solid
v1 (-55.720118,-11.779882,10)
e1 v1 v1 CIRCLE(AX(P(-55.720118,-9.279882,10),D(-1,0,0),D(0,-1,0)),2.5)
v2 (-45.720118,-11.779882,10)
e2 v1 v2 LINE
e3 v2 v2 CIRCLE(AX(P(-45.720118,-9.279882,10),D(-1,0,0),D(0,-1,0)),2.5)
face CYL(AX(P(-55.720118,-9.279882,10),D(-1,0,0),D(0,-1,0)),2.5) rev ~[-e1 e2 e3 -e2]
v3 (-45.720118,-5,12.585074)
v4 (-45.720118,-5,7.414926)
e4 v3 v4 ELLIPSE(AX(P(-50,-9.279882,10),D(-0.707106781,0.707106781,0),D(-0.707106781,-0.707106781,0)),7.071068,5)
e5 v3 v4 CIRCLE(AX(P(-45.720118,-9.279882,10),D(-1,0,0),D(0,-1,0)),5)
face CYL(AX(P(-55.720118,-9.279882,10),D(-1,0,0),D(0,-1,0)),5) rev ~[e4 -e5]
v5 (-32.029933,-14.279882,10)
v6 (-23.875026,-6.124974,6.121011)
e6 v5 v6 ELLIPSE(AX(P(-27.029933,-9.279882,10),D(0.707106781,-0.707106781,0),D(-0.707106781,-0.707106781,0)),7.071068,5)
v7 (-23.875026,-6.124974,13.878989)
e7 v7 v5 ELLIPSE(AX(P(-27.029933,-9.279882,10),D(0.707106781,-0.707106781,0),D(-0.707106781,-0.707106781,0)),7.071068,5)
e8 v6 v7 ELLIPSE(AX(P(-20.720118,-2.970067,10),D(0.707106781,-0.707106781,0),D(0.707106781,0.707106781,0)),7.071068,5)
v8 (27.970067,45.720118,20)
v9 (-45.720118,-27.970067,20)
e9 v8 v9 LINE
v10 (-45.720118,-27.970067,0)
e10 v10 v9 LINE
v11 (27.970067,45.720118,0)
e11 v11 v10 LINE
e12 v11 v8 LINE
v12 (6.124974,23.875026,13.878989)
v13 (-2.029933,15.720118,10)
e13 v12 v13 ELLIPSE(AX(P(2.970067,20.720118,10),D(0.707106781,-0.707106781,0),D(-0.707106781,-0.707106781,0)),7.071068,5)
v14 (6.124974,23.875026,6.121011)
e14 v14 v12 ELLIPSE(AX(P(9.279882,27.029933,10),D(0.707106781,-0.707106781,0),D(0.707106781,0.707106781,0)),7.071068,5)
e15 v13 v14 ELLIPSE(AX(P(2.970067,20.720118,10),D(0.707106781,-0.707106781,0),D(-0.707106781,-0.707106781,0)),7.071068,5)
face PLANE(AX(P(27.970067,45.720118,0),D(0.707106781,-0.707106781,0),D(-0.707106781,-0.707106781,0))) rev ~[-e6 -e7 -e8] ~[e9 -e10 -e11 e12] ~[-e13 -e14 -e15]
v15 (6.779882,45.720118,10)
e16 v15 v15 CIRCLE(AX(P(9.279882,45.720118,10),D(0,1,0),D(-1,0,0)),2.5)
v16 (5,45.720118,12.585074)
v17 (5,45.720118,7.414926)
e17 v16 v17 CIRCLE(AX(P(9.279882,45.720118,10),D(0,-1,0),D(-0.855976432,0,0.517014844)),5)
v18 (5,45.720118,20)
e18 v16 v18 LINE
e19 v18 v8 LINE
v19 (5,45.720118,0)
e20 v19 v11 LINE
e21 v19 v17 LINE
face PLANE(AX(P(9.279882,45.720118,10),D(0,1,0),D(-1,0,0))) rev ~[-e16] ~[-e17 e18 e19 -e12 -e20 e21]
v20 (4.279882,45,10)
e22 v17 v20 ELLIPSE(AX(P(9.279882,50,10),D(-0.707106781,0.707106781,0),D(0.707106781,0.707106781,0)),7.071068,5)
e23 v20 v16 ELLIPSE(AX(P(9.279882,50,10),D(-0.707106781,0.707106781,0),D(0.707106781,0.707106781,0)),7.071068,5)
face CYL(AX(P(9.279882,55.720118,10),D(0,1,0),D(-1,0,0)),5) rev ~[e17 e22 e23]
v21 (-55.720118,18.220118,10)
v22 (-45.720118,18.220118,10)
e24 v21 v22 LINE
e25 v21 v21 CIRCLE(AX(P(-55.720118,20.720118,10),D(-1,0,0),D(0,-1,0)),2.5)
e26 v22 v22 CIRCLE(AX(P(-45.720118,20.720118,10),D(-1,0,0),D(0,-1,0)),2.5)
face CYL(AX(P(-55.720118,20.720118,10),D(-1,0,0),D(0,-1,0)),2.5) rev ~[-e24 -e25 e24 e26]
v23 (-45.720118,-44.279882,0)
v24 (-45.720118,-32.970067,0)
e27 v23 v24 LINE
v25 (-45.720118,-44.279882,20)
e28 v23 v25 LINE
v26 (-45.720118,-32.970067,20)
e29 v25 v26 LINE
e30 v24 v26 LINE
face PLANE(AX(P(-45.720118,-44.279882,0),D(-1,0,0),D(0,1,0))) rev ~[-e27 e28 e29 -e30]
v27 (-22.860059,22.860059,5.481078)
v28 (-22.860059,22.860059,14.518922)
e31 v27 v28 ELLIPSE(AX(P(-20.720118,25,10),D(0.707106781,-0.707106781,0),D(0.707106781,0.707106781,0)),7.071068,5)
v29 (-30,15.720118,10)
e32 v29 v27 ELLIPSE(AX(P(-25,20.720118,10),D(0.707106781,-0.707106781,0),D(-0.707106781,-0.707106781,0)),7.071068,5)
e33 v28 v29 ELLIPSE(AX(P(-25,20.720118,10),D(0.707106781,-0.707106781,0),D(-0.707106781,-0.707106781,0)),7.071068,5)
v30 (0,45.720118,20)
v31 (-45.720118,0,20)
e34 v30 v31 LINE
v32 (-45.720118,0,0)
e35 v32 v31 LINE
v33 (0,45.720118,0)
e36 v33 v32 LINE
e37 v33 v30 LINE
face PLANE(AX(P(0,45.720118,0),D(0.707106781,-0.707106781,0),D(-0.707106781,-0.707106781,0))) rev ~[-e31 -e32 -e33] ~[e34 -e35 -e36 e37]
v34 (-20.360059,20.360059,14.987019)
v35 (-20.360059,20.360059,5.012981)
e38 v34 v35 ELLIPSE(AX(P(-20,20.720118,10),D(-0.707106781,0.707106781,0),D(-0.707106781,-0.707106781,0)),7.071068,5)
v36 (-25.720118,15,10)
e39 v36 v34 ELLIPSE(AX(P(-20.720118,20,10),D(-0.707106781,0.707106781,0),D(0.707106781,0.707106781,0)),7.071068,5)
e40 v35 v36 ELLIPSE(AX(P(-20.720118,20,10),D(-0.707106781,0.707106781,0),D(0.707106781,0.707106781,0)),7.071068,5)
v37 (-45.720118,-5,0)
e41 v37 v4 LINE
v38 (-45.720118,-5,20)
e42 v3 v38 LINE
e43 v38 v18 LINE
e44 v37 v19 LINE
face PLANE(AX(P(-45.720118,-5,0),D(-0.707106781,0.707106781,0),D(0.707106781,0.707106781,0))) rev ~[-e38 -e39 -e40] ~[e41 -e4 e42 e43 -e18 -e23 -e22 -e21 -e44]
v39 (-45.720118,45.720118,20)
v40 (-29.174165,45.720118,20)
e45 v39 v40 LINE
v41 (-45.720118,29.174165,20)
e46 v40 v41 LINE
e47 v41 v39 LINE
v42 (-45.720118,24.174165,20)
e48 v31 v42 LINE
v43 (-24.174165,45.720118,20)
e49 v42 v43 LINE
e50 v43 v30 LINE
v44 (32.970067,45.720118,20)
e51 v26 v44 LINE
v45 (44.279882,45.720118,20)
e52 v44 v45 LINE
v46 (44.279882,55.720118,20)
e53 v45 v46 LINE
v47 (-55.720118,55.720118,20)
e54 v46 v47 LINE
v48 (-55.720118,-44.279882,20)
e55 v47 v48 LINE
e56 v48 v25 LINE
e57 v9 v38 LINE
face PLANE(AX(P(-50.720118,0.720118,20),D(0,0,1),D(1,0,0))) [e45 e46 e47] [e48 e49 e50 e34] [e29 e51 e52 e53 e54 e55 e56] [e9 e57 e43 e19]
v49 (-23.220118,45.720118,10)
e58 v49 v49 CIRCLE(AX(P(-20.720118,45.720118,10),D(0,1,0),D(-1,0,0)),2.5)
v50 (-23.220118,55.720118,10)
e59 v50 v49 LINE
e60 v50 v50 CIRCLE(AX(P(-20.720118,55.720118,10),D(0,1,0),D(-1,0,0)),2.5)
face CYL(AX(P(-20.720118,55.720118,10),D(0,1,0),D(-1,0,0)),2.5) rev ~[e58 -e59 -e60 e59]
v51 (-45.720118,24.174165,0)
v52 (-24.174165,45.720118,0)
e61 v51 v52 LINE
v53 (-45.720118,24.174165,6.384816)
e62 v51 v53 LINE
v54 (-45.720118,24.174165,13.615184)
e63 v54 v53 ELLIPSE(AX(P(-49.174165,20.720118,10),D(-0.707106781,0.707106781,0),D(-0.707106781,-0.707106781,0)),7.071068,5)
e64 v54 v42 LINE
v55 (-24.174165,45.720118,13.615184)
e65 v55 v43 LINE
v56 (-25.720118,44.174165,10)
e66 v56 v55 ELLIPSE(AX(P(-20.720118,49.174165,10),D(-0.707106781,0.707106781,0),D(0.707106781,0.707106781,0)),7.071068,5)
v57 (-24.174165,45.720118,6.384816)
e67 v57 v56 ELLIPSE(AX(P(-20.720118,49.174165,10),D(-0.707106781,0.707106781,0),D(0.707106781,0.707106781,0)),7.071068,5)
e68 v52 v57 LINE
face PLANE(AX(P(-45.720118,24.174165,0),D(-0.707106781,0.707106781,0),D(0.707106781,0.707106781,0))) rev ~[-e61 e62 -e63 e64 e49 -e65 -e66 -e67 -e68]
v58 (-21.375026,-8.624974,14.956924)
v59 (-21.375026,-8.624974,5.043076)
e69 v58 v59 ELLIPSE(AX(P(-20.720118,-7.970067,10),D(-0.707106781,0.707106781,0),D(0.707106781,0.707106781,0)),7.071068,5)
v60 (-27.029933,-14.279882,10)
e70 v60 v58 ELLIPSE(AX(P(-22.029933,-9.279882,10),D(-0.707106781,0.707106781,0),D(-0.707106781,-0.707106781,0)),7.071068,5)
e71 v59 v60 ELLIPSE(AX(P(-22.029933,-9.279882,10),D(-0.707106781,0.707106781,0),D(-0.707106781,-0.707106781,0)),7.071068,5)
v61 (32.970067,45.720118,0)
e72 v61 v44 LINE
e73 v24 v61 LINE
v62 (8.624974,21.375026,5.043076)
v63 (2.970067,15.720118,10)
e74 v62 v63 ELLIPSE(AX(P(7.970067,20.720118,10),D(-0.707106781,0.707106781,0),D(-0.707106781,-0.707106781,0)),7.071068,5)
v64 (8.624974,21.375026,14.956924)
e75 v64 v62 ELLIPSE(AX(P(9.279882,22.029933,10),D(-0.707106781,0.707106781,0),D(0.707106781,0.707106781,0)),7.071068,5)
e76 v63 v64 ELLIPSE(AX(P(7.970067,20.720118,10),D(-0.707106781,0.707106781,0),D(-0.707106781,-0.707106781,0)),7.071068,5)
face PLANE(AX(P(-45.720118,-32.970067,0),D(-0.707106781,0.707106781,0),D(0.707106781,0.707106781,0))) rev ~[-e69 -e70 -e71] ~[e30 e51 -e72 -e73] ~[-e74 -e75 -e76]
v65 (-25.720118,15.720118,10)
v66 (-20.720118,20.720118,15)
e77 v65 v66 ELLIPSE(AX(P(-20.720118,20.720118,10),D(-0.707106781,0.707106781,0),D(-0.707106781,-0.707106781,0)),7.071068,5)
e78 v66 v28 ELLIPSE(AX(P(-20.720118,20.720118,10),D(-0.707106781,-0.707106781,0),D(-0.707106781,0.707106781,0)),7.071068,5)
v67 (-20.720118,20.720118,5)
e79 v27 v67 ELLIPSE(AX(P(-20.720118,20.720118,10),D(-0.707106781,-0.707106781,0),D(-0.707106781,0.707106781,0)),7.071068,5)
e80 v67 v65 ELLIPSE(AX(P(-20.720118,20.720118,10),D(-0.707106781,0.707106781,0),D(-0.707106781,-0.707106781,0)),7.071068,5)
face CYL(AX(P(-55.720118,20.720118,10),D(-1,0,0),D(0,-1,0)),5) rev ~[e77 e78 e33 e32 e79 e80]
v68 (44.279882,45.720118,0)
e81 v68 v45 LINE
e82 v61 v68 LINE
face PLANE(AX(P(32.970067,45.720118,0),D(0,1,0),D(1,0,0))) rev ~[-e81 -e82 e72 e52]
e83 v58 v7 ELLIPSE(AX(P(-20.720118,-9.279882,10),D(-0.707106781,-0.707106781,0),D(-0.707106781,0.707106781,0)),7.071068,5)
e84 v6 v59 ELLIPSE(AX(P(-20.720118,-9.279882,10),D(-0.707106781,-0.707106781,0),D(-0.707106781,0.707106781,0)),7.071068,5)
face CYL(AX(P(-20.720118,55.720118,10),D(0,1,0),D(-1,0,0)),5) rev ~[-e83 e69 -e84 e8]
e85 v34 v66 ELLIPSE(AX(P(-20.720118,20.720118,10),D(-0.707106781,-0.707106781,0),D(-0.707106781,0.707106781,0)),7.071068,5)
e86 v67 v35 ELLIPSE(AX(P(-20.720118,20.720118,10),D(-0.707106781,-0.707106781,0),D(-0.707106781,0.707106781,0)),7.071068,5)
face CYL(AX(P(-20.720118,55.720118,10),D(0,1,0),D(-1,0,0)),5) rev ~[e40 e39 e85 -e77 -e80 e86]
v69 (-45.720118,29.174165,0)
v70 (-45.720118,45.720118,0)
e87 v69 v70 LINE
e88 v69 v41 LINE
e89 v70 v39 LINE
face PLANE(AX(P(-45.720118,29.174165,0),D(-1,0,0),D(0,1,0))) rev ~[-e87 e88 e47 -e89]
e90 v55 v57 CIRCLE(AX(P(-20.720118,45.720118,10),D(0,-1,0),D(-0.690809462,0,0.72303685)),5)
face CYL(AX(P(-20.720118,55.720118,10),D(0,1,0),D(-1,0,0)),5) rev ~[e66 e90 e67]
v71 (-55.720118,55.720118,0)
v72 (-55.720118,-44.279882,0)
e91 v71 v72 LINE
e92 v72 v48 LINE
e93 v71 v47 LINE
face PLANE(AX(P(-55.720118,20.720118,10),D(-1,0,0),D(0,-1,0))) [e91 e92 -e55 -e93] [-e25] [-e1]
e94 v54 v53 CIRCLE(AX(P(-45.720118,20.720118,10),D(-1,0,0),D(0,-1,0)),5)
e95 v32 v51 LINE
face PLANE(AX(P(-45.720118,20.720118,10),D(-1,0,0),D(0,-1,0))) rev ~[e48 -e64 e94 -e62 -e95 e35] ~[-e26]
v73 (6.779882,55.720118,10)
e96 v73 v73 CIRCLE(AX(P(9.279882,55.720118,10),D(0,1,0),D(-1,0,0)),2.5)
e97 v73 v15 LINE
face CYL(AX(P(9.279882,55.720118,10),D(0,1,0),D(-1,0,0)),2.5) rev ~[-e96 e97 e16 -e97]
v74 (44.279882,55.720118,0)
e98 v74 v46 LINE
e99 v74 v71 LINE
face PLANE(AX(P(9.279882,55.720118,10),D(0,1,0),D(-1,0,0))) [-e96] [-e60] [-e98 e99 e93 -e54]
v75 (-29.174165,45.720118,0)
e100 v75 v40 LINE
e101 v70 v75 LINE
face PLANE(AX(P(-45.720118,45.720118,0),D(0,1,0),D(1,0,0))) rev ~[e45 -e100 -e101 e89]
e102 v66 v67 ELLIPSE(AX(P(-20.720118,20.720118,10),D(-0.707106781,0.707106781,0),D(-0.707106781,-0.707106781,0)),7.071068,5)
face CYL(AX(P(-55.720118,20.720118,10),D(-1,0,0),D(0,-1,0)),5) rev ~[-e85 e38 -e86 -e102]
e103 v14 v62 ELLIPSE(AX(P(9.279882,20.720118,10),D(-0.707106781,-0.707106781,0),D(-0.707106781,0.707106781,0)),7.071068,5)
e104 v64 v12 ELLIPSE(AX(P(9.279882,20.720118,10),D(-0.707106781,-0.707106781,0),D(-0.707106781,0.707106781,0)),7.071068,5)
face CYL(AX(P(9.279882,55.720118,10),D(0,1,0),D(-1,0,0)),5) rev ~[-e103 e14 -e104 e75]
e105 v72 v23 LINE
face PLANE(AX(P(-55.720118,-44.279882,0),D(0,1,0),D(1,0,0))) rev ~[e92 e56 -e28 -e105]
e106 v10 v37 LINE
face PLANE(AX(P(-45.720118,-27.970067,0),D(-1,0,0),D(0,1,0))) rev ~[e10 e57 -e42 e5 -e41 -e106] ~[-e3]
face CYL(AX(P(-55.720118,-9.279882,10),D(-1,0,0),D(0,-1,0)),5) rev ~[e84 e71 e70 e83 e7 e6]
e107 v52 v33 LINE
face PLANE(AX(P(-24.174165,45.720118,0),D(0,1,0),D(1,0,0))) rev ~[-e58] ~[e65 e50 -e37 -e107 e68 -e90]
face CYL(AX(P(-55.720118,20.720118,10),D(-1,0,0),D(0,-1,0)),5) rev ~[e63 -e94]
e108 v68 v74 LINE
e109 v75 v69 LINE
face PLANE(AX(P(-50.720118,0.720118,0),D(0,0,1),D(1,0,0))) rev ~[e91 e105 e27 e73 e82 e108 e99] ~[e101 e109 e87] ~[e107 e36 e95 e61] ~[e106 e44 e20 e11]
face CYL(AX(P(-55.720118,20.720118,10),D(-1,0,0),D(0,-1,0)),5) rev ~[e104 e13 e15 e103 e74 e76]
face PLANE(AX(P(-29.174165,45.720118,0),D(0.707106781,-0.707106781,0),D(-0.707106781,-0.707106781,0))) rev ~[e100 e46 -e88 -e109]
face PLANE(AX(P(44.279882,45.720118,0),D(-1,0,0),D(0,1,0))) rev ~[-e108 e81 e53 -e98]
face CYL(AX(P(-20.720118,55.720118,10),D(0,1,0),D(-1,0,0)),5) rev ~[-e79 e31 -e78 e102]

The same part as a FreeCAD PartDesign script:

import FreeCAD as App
import Part
import Sketcher
from FreeCAD import Vector
Q = App.Units.Quantity


def add_polygon(sketch, points):
    """Adds a closed chain of lines whose ends are joined by coincident constraints."""
    first, n = sketch.GeometryCount, len(points)
    for a, b in zip(points, points[1:] + points[:1]):
        sketch.addGeometry(Part.LineSegment(App.Vector(*a, 0), App.Vector(*b, 0)), False)
    for i in range(n):
        sketch.addConstraint(Sketcher.Constraint("Coincident", first + i, 2, first + (i + 1) % n, 1))

doc = App.newDocument("Part")
params = doc.addObject("Spreadsheet::Sheet", "Params")
for row, (alias, value) in enumerate([
    ("sketch1_width", "10 mm"),
    ("sketch1_width2", "100 mm"),
    ("pad1_length", "20 mm"),
    ("sketch2_diameter", "10 mm"),
    ("pocket1_length", "86.8 mm"),
    ("sketch3_diameter", "10 mm"),
    ("sketch3_diameter2", "5 mm"),
    ("pad2_length", "10 mm"),
    ("sketch4_diameter", "10 mm"),
    ("pocket2_length", "102.9 mm"),
    ("sketch5_diameter", "10 mm"),
    ("sketch5_diameter2", "5 mm"),
    ("pad3_length", "10 mm"),
], start=1):
    params.set(f"A{row}", alias)
    params.set(f"B{row}", "=" + value)
    params.setAlias(f"B{row}", alias)

body = doc.addObject("PartDesign::Body", "Body")

sketch1 = body.newObject("Sketcher::SketchObject", "Sketch")
sketch1.AttachmentSupport = (doc.getObject("XY_Plane"), [""])
sketch1.MapMode = "FlatFace"
add_polygon(sketch1, [(-56, -44), (-46, -44), (-46, -33), (33, 46), (44, 46), (44, 56), (-56, 56)])
add_polygon(sketch1, [(-46, -28), (-46, -5), (5, 46), (28, 46)])
add_polygon(sketch1, [(-46, 0), (-46, 24), (-24, 46), (0, 46)])
add_polygon(sketch1, [(-46, 29), (-46, 46), (-29, 46)])
sketch1.addConstraint(Sketcher.Constraint("Horizontal", 0))
sketch1.addConstraint(Sketcher.Constraint("Vertical", 1))
sketch1.addConstraint(Sketcher.Constraint("Horizontal", 3))
sketch1.addConstraint(Sketcher.Constraint("Vertical", 4))
sketch1.addConstraint(Sketcher.Constraint("Horizontal", 5))
sketch1.addConstraint(Sketcher.Constraint("Vertical", 6))
sketch1.addConstraint(Sketcher.Constraint("Vertical", 7))
sketch1.addConstraint(Sketcher.Constraint("Horizontal", 9))
sketch1.addConstraint(Sketcher.Constraint("Vertical", 11))
sketch1.addConstraint(Sketcher.Constraint("Horizontal", 13))
sketch1.addConstraint(Sketcher.Constraint("Vertical", 15))
sketch1.addConstraint(Sketcher.Constraint("Horizontal", 16))
sketch1.addConstraint(Sketcher.Constraint("PointOnObject", 13, 2, -2))
sketch1.addConstraint(Sketcher.Constraint("PointOnObject", 14, 2, -1))
sketch1.addConstraint(Sketcher.Constraint("Parallel", 2, 8))
sketch1.addConstraint(Sketcher.Constraint("Parallel", 8, 10))
sketch1.addConstraint(Sketcher.Constraint("Parallel", 10, 12))
sketch1.addConstraint(Sketcher.Constraint("Parallel", 12, 14))
sketch1.addConstraint(Sketcher.Constraint("Parallel", 14, 17))
sketch1.addConstraint(Sketcher.Constraint("Horizontal", 3, 2, 8, 2))
sketch1.addConstraint(Sketcher.Constraint("Horizontal", 9, 2, 12, 2))
sketch1.addConstraint(Sketcher.Constraint("Horizontal", 13, 2, 15, 2))
sketch1.addConstraint(Sketcher.Constraint("Vertical", 1, 2, 7, 2))
sketch1.addConstraint(Sketcher.Constraint("Vertical", 10, 2, 11, 2))
sketch1.addConstraint(Sketcher.Constraint("Vertical", 14, 2, 15, 2))
sketch1.addConstraint(Sketcher.Constraint("Equal", 3, 1))
sketch1.addConstraint(Sketcher.Constraint("Equal", 0, 4))
sketch1.addConstraint(Sketcher.Constraint("Equal", 5, 6))
sketch1.addConstraint(Sketcher.Constraint("DistanceX", 0, 1, 0, 2, Q("10 mm")))
sketch1.addConstraint(Sketcher.Constraint("DistanceX", 5, 2, 5, 1, Q("100 mm")))
sketch1.addConstraint(Sketcher.Constraint("DistanceY", 7, 2, -1, 1, Q("5 mm")))
sketch1.addConstraint(Sketcher.Constraint("DistanceX", 9, 2, 2, 2, Q("5 mm")))
sketch1.addConstraint(Sketcher.Constraint("DistanceX", 16, 2, 12, 2, Q("5 mm")))
sketch1.addConstraint(Sketcher.Constraint("Distance", 8, Q("71.729079 mm")))
sketch1.addConstraint(Sketcher.Constraint("Distance", 10, Q("104.213658 mm")))
sketch1.addConstraint(Sketcher.Constraint("Distance", 12, Q("30.470579 mm")))
sketch1.setExpression("Constraints[46]", "Params.sketch1_width")
sketch1.setExpression("Constraints[47]", "Params.sketch1_width2")
pad1 = body.newObject("PartDesign::Pad", "Pad")
pad1.Profile = sketch1
pad1.setExpression("Length", "Params.pad1_length")

sketch2 = body.newObject("Sketcher::SketchObject", "Sketch001")
sketch2.AttachmentSupport = (doc.getObject("YZ_Plane"), [""])
sketch2.MapMode = "FlatFace"
sketch2.AttachmentOffset = App.Placement(Vector(0, 0, -55.720118), App.Rotation())
sketch2.addGeometry(Part.Circle(Vector(-9, 10, 0), Vector(0, 0, 1), 5), False)
sketch2.addGeometry(Part.Circle(Vector(21, 10, 0), Vector(0, 0, 1), 5), False)
sketch2.addConstraint(Sketcher.Constraint("Equal", 0, 1))
sketch2.addConstraint(Sketcher.Constraint("Horizontal", 0, 3, 1, 3))
sketch2.addConstraint(Sketcher.Constraint("Diameter", 0, Q("10 mm")))
sketch2.addConstraint(Sketcher.Constraint("DistanceY", -1, 1, 0, 3, Q("10 mm")))
sketch2.addConstraint(Sketcher.Constraint("DistanceX", 0, 3, 1, 3, Q("30 mm")))
sketch2.addConstraint(Sketcher.Constraint("DistanceX", 0, 3, -1, 1, Q("9.279882 mm")))
sketch2.setExpression("Constraints[2]", "Params.sketch2_diameter")
pocket1 = body.newObject("PartDesign::Pocket", "Pocket")
pocket1.Profile = sketch2
pocket1.setExpression("Length", "Params.pocket1_length")
pocket1.Reversed = True

sketch3 = body.newObject("Sketcher::SketchObject", "Sketch002")
sketch3.AttachmentSupport = (doc.getObject("YZ_Plane"), [""])
sketch3.MapMode = "FlatFace"
sketch3.AttachmentOffset = App.Placement(Vector(0, 0, -55.720118), App.Rotation())
sketch3.addGeometry(Part.Circle(Vector(20.7, 10, 0), Vector(0, 0, 1), 5), False)
sketch3.addGeometry(Part.Circle(Vector(20.7, 10, 0), Vector(0, 0, 1), 2.5), False)
sketch3.addGeometry(Part.Circle(Vector(-9.3, 10, 0), Vector(0, 0, 1), 5), False)
sketch3.addGeometry(Part.Circle(Vector(-9.3, 10, 0), Vector(0, 0, 1), 2.5), False)
sketch3.addConstraint(Sketcher.Constraint("Coincident", 1, 3, 0, 3))
sketch3.addConstraint(Sketcher.Constraint("Coincident", 3, 3, 2, 3))
sketch3.addConstraint(Sketcher.Constraint("Equal", 0, 2))
sketch3.addConstraint(Sketcher.Constraint("Equal", 1, 3))
sketch3.addConstraint(Sketcher.Constraint("Horizontal", 1, 3, 2, 3))
sketch3.addConstraint(Sketcher.Constraint("Diameter", 0, Q("10 mm")))
sketch3.addConstraint(Sketcher.Constraint("Diameter", 1, Q("5 mm")))
sketch3.addConstraint(Sketcher.Constraint("DistanceY", -1, 1, 0, 3, Q("10 mm")))
sketch3.addConstraint(Sketcher.Constraint("DistanceX", 2, 3, 0, 3, Q("30 mm")))
sketch3.addConstraint(Sketcher.Constraint("DistanceX", -1, 1, 0, 3, Q("20.720118 mm")))
sketch3.setExpression("Constraints[5]", "Params.sketch3_diameter")
sketch3.setExpression("Constraints[6]", "Params.sketch3_diameter2")
pad2 = body.newObject("PartDesign::Pad", "Pad001")
pad2.Profile = sketch3
pad2.setExpression("Length", "Params.pad2_length")

sketch4 = body.newObject("Sketcher::SketchObject", "Sketch003")
sketch4.AttachmentSupport = (doc.getObject("XZ_Plane"), [""])
sketch4.MapMode = "FlatFace"
sketch4.AttachmentOffset = App.Placement(Vector(0, 0, -55.720118), App.Rotation())
sketch4.addGeometry(Part.Circle(Vector(-21, 10, 0), Vector(0, 0, 1), 5), False)
sketch4.addGeometry(Part.Circle(Vector(9, 10, 0), Vector(0, 0, 1), 5), False)
sketch4.addConstraint(Sketcher.Constraint("Equal", 0, 1))
sketch4.addConstraint(Sketcher.Constraint("Horizontal", 0, 3, 1, 3))
sketch4.addConstraint(Sketcher.Constraint("Diameter", 0, Q("10 mm")))
sketch4.addConstraint(Sketcher.Constraint("DistanceY", -1, 1, 0, 3, Q("10 mm")))
sketch4.addConstraint(Sketcher.Constraint("DistanceX", 0, 3, 1, 3, Q("30 mm")))
sketch4.addConstraint(Sketcher.Constraint("DistanceX", 0, 3, -1, 1, Q("20.720118 mm")))
sketch4.setExpression("Constraints[2]", "Params.sketch4_diameter")
pocket2 = body.newObject("PartDesign::Pocket", "Pocket001")
pocket2.Profile = sketch4
pocket2.setExpression("Length", "Params.pocket2_length")
pocket2.Reversed = True

sketch5 = body.newObject("Sketcher::SketchObject", "Sketch004")
sketch5.AttachmentSupport = (doc.getObject("XZ_Plane"), [""])
sketch5.MapMode = "FlatFace"
sketch5.AttachmentOffset = App.Placement(Vector(0, 0, -55.720118), App.Rotation())
sketch5.addGeometry(Part.Circle(Vector(9.3, 10, 0), Vector(0, 0, 1), 5), False)
sketch5.addGeometry(Part.Circle(Vector(9.3, 10, 0), Vector(0, 0, 1), 2.5), False)
sketch5.addGeometry(Part.Circle(Vector(-20.7, 10, 0), Vector(0, 0, 1), 5), False)
sketch5.addGeometry(Part.Circle(Vector(-20.7, 10, 0), Vector(0, 0, 1), 2.5), False)
sketch5.addConstraint(Sketcher.Constraint("Coincident", 1, 3, 0, 3))
sketch5.addConstraint(Sketcher.Constraint("Coincident", 3, 3, 2, 3))
sketch5.addConstraint(Sketcher.Constraint("Equal", 0, 2))
sketch5.addConstraint(Sketcher.Constraint("Equal", 1, 3))
sketch5.addConstraint(Sketcher.Constraint("Horizontal", 1, 3, 2, 3))
sketch5.addConstraint(Sketcher.Constraint("Diameter", 0, Q("10 mm")))
sketch5.addConstraint(Sketcher.Constraint("Diameter", 1, Q("5 mm")))
sketch5.addConstraint(Sketcher.Constraint("DistanceY", -1, 1, 0, 3, Q("10 mm")))
sketch5.addConstraint(Sketcher.Constraint("DistanceX", 2, 3, 0, 3, Q("30 mm")))
sketch5.addConstraint(Sketcher.Constraint("DistanceX", -1, 1, 0, 3, Q("9.279882 mm")))
sketch5.setExpression("Constraints[5]", "Params.sketch5_diameter")
sketch5.setExpression("Constraints[6]", "Params.sketch5_diameter2")
pad3 = body.newObject("PartDesign::Pad", "Pad002")
pad3.Profile = sketch5
pad3.setExpression("Length", "Params.pad3_length")

doc.recompute()
